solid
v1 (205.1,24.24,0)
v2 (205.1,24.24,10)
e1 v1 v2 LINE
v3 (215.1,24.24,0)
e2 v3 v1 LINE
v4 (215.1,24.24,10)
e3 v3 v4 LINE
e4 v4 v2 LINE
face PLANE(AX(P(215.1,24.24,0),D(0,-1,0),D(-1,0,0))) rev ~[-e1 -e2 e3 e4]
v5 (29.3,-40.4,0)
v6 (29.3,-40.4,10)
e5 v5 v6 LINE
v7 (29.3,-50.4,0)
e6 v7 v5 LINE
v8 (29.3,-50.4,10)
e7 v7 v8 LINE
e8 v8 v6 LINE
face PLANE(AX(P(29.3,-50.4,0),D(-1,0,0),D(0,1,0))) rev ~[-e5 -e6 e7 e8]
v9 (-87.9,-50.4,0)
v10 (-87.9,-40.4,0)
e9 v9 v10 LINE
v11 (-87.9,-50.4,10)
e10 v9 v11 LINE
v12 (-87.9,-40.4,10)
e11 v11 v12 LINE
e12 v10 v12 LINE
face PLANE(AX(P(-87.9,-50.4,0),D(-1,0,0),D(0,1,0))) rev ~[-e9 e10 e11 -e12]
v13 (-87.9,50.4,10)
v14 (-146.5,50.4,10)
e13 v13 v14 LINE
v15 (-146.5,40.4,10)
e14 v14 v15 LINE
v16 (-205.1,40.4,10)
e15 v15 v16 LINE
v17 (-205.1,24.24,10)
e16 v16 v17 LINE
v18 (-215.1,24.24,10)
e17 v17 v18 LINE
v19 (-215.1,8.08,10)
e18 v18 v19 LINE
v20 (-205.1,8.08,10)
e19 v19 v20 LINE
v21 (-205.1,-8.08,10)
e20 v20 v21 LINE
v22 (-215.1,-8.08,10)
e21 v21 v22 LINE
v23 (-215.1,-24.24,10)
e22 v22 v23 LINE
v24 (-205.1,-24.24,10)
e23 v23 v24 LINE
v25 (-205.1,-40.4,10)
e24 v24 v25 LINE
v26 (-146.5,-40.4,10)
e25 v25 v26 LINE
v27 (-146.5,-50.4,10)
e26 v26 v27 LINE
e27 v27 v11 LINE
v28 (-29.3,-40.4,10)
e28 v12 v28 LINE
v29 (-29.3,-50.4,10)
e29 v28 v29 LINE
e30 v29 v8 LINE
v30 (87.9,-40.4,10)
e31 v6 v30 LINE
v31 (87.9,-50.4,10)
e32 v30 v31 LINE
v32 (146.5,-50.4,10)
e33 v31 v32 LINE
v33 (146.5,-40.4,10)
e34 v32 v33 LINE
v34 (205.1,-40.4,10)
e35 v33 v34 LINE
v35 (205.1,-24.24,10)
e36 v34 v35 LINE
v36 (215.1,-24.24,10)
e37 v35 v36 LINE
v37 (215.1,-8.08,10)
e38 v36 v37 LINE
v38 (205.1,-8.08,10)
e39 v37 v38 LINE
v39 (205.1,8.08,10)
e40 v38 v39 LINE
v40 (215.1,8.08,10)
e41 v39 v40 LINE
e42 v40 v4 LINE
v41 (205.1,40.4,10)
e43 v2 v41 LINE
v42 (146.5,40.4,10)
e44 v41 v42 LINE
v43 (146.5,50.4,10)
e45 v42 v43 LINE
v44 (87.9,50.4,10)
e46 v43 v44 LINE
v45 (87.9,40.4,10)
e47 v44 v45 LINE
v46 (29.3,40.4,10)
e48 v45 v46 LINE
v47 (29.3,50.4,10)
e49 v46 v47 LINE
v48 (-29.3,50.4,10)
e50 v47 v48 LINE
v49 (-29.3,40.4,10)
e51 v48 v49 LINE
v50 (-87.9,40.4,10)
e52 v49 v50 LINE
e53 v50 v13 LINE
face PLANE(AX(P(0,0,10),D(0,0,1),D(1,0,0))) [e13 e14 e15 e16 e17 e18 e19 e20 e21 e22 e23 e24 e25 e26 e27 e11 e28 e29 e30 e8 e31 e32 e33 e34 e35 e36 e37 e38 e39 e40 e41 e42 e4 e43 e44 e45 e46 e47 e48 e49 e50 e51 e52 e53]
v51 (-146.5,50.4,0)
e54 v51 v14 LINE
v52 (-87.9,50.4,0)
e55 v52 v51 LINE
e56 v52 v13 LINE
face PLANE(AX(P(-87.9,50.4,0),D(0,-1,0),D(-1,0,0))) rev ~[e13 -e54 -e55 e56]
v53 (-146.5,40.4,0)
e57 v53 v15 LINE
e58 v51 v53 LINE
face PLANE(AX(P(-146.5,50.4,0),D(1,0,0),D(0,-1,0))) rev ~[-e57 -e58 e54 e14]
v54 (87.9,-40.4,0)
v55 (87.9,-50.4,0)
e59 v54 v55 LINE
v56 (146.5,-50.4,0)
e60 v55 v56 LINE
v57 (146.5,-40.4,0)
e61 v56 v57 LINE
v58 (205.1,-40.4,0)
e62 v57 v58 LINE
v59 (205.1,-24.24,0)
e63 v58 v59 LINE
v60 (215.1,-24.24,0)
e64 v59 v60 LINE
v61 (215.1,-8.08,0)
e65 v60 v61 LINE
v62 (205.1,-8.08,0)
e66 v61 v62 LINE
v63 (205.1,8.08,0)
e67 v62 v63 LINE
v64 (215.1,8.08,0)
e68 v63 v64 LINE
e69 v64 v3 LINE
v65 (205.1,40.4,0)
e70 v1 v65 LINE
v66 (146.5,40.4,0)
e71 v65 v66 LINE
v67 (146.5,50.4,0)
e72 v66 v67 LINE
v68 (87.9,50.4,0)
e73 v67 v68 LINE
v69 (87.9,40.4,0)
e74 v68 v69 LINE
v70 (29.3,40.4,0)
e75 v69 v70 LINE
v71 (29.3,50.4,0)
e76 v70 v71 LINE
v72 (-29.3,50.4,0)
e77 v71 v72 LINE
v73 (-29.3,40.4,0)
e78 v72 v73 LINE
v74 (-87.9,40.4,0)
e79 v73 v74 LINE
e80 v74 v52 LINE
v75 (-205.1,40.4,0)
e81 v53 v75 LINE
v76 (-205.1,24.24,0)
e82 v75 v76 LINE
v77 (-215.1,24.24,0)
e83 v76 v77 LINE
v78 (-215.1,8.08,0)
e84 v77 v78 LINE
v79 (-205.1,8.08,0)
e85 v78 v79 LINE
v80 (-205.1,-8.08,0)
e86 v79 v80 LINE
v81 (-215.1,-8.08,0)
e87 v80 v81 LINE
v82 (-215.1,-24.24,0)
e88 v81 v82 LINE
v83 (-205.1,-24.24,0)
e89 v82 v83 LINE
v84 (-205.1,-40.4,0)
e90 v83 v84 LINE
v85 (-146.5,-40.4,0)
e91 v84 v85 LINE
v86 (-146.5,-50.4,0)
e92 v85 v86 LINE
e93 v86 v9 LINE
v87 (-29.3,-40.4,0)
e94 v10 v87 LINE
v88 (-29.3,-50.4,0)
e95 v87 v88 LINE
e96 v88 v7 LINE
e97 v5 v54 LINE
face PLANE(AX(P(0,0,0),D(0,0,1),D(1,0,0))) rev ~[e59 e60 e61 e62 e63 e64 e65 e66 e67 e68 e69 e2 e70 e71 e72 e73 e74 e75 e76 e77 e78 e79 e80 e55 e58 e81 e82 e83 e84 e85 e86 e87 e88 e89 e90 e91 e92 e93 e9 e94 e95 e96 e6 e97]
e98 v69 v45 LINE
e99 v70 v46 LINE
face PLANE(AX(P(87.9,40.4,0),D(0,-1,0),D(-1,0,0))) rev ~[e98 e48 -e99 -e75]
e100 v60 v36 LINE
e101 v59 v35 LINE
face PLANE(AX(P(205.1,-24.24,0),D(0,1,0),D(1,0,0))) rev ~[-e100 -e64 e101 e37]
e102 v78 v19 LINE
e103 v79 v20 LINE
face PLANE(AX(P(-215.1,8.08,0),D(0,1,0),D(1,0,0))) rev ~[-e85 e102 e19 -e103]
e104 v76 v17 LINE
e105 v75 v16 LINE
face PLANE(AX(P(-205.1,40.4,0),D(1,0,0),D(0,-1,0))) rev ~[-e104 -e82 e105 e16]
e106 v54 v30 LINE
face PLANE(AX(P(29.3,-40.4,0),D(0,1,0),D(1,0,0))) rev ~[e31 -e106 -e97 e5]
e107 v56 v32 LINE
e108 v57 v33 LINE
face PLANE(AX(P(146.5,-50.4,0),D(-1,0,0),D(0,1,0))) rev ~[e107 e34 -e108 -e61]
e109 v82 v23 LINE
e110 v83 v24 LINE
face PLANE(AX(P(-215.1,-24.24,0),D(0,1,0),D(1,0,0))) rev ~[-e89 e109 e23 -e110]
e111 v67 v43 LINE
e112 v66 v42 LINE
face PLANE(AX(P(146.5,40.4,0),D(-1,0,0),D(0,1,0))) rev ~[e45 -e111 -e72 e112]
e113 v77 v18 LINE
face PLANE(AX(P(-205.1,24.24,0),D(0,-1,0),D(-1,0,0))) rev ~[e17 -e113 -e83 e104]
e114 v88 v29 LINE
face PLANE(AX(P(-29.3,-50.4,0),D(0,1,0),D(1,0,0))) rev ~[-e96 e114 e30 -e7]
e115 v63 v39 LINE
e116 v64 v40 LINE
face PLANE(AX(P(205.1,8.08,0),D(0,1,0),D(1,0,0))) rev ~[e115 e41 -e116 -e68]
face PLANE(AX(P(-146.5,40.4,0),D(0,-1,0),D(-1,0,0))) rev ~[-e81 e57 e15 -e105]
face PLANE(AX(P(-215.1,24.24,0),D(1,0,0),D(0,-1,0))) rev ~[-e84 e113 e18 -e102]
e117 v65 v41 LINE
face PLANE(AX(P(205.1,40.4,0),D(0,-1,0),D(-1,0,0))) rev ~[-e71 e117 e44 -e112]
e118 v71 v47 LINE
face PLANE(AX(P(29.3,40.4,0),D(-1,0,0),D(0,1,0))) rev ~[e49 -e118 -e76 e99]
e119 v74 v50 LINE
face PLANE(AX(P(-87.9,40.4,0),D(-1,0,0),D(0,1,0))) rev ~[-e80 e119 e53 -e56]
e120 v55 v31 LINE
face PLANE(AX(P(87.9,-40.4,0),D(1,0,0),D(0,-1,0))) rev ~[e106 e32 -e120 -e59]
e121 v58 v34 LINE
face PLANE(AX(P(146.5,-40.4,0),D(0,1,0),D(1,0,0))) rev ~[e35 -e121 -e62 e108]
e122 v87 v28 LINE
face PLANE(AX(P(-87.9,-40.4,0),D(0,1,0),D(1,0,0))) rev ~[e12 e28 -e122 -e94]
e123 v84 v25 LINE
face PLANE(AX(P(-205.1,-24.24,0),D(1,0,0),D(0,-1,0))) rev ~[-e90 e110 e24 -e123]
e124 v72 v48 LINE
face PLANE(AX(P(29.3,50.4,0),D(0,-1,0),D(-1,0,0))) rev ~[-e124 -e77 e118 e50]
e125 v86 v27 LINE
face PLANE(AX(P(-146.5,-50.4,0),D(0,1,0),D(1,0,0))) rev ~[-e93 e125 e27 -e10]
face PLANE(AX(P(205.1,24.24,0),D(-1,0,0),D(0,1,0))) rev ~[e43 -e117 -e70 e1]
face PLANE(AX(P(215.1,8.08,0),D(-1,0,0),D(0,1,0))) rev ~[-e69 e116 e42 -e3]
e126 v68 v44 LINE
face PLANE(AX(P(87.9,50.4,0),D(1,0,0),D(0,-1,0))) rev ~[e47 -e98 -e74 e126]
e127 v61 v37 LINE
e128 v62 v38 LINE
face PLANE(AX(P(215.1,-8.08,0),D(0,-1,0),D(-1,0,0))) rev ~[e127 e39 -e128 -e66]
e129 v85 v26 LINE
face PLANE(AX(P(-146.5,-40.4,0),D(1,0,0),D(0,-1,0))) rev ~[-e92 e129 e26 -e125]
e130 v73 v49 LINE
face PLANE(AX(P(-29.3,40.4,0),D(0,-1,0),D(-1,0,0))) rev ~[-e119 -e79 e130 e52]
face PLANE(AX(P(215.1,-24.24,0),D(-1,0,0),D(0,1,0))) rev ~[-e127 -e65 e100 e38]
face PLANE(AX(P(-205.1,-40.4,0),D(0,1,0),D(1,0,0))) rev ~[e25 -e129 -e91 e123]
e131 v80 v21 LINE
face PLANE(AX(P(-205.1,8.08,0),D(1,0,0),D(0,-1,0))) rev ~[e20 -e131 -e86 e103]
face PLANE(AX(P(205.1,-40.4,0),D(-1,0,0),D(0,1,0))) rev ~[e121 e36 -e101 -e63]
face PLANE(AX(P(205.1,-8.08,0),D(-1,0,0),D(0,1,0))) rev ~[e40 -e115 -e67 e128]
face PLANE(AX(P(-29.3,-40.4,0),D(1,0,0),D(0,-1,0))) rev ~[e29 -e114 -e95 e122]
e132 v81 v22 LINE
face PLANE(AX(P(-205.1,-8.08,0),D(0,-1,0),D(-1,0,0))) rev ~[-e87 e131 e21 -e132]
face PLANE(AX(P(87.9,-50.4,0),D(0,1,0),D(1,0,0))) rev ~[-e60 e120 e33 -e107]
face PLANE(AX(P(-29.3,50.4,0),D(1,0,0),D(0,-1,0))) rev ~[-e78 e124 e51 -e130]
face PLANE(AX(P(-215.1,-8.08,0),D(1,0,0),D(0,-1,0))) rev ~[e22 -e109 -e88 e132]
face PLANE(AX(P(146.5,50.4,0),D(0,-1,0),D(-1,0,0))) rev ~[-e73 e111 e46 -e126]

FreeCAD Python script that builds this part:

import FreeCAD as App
import Part
import Sketcher
Q = App.Units.Quantity


def add_polygon(sketch, points):
    """Adds a closed chain of lines whose ends are joined by coincident constraints."""
    first, n = sketch.GeometryCount, len(points)
    for a, b in zip(points, points[1:] + points[:1]):
        sketch.addGeometry(Part.LineSegment(App.Vector(*a, 0), App.Vector(*b, 0)), False)
    for i in range(n):
        sketch.addConstraint(Sketcher.Constraint("Coincident", first + i, 2, first + (i + 1) % n, 1))

doc = App.newDocument("Part")
params = doc.addObject("Spreadsheet::Sheet", "Params")
for row, (alias, value) in enumerate([
    ("sketch1_width", "10 mm"),
    ("sketch1_width2", "58.6 mm"),
    ("sketch1_height", "16.16 mm"),
    ("pad1_length", "10 mm"),
], start=1):
    params.set(f"A{row}", alias)
    params.set(f"B{row}", "=" + value)
    params.setAlias(f"B{row}", alias)

body = doc.addObject("PartDesign::Body", "Body")

# Sketch on XY plane
sketch1 = doc.addObject("Sketcher::SketchObject", "Sketch")
body.addObject(sketch1)
sketch1.AttachmentSupport = (doc.XY_Plane, [""])
sketch1.MapMode = "FlatFace"
add_polygon(sketch1, [(-205.1, 40.4), (-205.1, 24.24), (-215.1, 24.24), (-215.1, 8.08), (-205.1, 8.08), (-205.1, -8.08), (-215.1, -8.08), (-215.1, -24.24), (-205.1, -24.24), (-205.1, -40.4), (-146.5, -40.4), (-146.5, -50.4), (-87.9, -50.4), (-87.9, -40.4), (-29.3, -40.4), (-29.3, -50.4), (29.3, -50.4), (29.3, -40.4), (87.9, -40.4), (87.9, -50.4), (146.5, -50.4), (146.5, -40.4), (205.1, -40.4), (205.1, -24.24), (215.1, -24.24), (215.1, -8.08), (205.1, -8.08), (205.1, 8.08), (215.1, 8.08), (215.1, 24.24), (205.1, 24.24), (205.1, 40.4), (146.5, 40.4), (146.5, 50.4), (87.9, 50.4), (87.9, 40.4), (29.3, 40.4), (29.3, 50.4), (-29.3, 50.4), (-29.3, 40.4), (-87.9, 40.4), (-87.9, 50.4), (-146.5, 50.4), (-146.5, 40.4)])  # lines 0-43
sketch1.addConstraint(Sketcher.Constraint("Vertical", 0))
sketch1.addConstraint(Sketcher.Constraint("Horizontal", 1))
sketch1.addConstraint(Sketcher.Constraint("Vertical", 2))
sketch1.addConstraint(Sketcher.Constraint("Horizontal", 3))
sketch1.addConstraint(Sketcher.Constraint("Vertical", 4))
sketch1.addConstraint(Sketcher.Constraint("Horizontal", 5))
sketch1.addConstraint(Sketcher.Constraint("Vertical", 6))
sketch1.addConstraint(Sketcher.Constraint("Horizontal", 7))
sketch1.addConstraint(Sketcher.Constraint("Vertical", 8))
sketch1.addConstraint(Sketcher.Constraint("Horizontal", 9))
sketch1.addConstraint(Sketcher.Constraint("Vertical", 10))
sketch1.addConstraint(Sketcher.Constraint("Horizontal", 11))
sketch1.addConstraint(Sketcher.Constraint("Vertical", 12))
sketch1.addConstraint(Sketcher.Constraint("Horizontal", 13))
sketch1.addConstraint(Sketcher.Constraint("Vertical", 14))
sketch1.addConstraint(Sketcher.Constraint("Horizontal", 15))
sketch1.addConstraint(Sketcher.Constraint("Vertical", 16))
sketch1.addConstraint(Sketcher.Constraint("Horizontal", 17))
sketch1.addConstraint(Sketcher.Constraint("Vertical", 18))
sketch1.addConstraint(Sketcher.Constraint("Horizontal", 19))
sketch1.addConstraint(Sketcher.Constraint("Vertical", 20))
sketch1.addConstraint(Sketcher.Constraint("Horizontal", 21))
sketch1.addConstraint(Sketcher.Constraint("Vertical", 22))
sketch1.addConstraint(Sketcher.Constraint("Horizontal", 23))
sketch1.addConstraint(Sketcher.Constraint("Vertical", 24))
sketch1.addConstraint(Sketcher.Constraint("Horizontal", 25))
sketch1.addConstraint(Sketcher.Constraint("Vertical", 26))
sketch1.addConstraint(Sketcher.Constraint("Horizontal", 27))
sketch1.addConstraint(Sketcher.Constraint("Vertical", 28))
sketch1.addConstraint(Sketcher.Constraint("Horizontal", 29))
sketch1.addConstraint(Sketcher.Constraint("Vertical", 30))
sketch1.addConstraint(Sketcher.Constraint("Horizontal", 31))
sketch1.addConstraint(Sketcher.Constraint("Vertical", 32))
sketch1.addConstraint(Sketcher.Constraint("Horizontal", 33))
sketch1.addConstraint(Sketcher.Constraint("Vertical", 34))
sketch1.addConstraint(Sketcher.Constraint("Horizontal", 35))
sketch1.addConstraint(Sketcher.Constraint("Vertical", 36))
sketch1.addConstraint(Sketcher.Constraint("Horizontal", 37))
sketch1.addConstraint(Sketcher.Constraint("Vertical", 38))
sketch1.addConstraint(Sketcher.Constraint("Horizontal", 39))
sketch1.addConstraint(Sketcher.Constraint("Vertical", 40))
sketch1.addConstraint(Sketcher.Constraint("Horizontal", 41))
sketch1.addConstraint(Sketcher.Constraint("Vertical", 42))
sketch1.addConstraint(Sketcher.Constraint("Horizontal", 43))
sketch1.addConstraint(Sketcher.Constraint("Symmetric", 0, 2, 22, 2, -1, 1))
sketch1.addConstraint(Sketcher.Constraint("Symmetric", 2, 2, 24, 2, -1, 1))
sketch1.addConstraint(Sketcher.Constraint("Symmetric", 4, 2, 26, 2, -1, 1))
sketch1.addConstraint(Sketcher.Constraint("Symmetric", 6, 2, 28, 2, -1, 1))
sketch1.addConstraint(Sketcher.Constraint("Symmetric", 8, 2, 30, 2, -1, 1))
sketch1.addConstraint(Sketcher.Constraint("Symmetric", 10, 2, 32, 2, -1, 1))
sketch1.addConstraint(Sketcher.Constraint("Symmetric", 12, 2, 34, 2, -1, 1))
sketch1.addConstraint(Sketcher.Constraint("Symmetric", 14, 2, 36, 2, -1, 1))
sketch1.addConstraint(Sketcher.Constraint("Symmetric", 16, 2, 38, 2, -1, 1))
sketch1.addConstraint(Sketcher.Constraint("Symmetric", 18, 2, 40, 2, -1, 1))
sketch1.addConstraint(Sketcher.Constraint("Symmetric", 20, 2, 42, 2, -1, 1))
sketch1.addConstraint(Sketcher.Constraint("Symmetric", 13, 2, 16, 2, -2))
sketch1.addConstraint(Sketcher.Constraint("Symmetric", 11, 2, 18, 2, -2))
sketch1.addConstraint(Sketcher.Constraint("Symmetric", 9, 2, 20, 2, -2))
sketch1.addConstraint(Sketcher.Constraint("Symmetric", 7, 2, 22, 2, -2))
sketch1.addConstraint(Sketcher.Constraint("Symmetric", 5, 2, 24, 2, -2))
sketch1.addConstraint(Sketcher.Constraint("Horizontal", 9, 2, 12, 2))
sketch1.addConstraint(Sketcher.Constraint("Horizontal", 11, 2, 14, 2))
sketch1.addConstraint(Sketcher.Constraint("Vertical", 0, 2, 3, 2))
sketch1.addConstraint(Sketcher.Constraint("Equal", 9, 11))
sketch1.addConstraint(Sketcher.Constraint("Equal", 11, 13))
sketch1.addConstraint(Sketcher.Constraint("Equal", 13, 15))
sketch1.addConstraint(Sketcher.Constraint("Equal", 0, 2))
sketch1.addConstraint(Sketcher.Constraint("Equal", 2, 4))
sketch1.addConstraint(Sketcher.Constraint("Equal", 29, 10))
sketch1.addConstraint(Sketcher.Constraint("DistanceX", 1, 2, 1, 1, Q("10 mm")))
sketch1.addConstraint(Sketcher.Constraint("DistanceX", 9, 1, 9, 2, Q("58.6 mm")))
sketch1.addConstraint(Sketcher.Constraint("DistanceY", 0, 2, 0, 1, Q("16.16 mm")))
sketch1.setExpression("Constraints[113]", "Params.sketch1_width")
sketch1.setExpression("Constraints[114]", "Params.sketch1_width2")
sketch1.setExpression("Constraints[115]", "Params.sketch1_height")
pad1 = doc.addObject("PartDesign::Pad", "Pad")
body.addObject(pad1)
pad1.Profile = sketch1
pad1.setExpression("Length", "Params.pad1_length")

doc.recompute()
